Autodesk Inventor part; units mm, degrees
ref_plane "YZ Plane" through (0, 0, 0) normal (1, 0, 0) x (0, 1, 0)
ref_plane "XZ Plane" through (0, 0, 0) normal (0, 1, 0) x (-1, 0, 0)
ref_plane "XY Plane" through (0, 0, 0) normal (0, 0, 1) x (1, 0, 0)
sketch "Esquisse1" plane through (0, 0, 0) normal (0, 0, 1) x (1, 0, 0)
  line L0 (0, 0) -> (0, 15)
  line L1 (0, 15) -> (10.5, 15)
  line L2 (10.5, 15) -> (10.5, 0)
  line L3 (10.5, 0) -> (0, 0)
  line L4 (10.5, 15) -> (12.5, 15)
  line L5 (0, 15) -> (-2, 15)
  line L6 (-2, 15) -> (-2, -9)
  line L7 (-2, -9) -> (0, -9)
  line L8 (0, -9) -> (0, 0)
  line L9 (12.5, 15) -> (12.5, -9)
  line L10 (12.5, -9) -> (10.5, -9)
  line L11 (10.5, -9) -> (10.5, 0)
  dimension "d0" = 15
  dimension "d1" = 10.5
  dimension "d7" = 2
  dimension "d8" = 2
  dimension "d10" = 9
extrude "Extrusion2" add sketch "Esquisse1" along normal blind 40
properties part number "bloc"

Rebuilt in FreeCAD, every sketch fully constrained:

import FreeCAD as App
import Part
import Sketcher
Q = App.Units.Quantity


def add_polygon(sketch, points):
    """Adds a closed chain of lines whose ends are joined by coincident constraints."""
    first, n = sketch.GeometryCount, len(points)
    for a, b in zip(points, points[1:] + points[:1]):
        sketch.addGeometry(Part.LineSegment(App.Vector(*a, 0), App.Vector(*b, 0)), False)
    for i in range(n):
        sketch.addConstraint(Sketcher.Constraint("Coincident", first + i, 2, first + (i + 1) % n, 1))

doc = App.newDocument("Part")
body = doc.addObject("PartDesign::Body", "Body")

# Sketch on XY plane
sketch1 = body.newObject("Sketcher::SketchObject", "Sketch")
sketch1.AttachmentSupport = (doc.getObject("XY_Plane"), [""])
sketch1.MapMode = "FlatFace"
add_polygon(sketch1, [(0, -9), (0, 0), (10.5, 0), (10.5, -9), (12.5, -9), (12.5, 15), (-2, 15), (-2, -9)])  # lines 0-7
sketch1.addConstraint([
    Sketcher.Constraint("Vertical", 0),
    Sketcher.Constraint("Horizontal", 1),
    Sketcher.Constraint("Vertical", 2),
    Sketcher.Constraint("Horizontal", 3),
    Sketcher.Constraint("Vertical", 4),
    Sketcher.Constraint("Horizontal", 5),
    Sketcher.Constraint("Vertical", 6),
    Sketcher.Constraint("Horizontal", 7),
    Sketcher.Constraint("Coincident", 0, 2, -1, 1),
    Sketcher.Constraint("Horizontal", 3, 2, 6, 2),
    Sketcher.Constraint("Equal", 3, 7),
    Sketcher.Constraint("DistanceX", 3, 1, 3, 2, Q("2 mm")),
    Sketcher.Constraint("DistanceY", 0, 1, 0, 2, Q("9 mm")),
    Sketcher.Constraint("DistanceX", 1, 1, 1, 2, Q("10.5 mm")),
    Sketcher.Constraint("DistanceY", -1, 1, 4, 2, Q("15 mm")),
])
pad1 = body.newObject("PartDesign::Pad", "Pad")
pad1.Profile = sketch1
pad1.Length = 40

doc.recompute()
